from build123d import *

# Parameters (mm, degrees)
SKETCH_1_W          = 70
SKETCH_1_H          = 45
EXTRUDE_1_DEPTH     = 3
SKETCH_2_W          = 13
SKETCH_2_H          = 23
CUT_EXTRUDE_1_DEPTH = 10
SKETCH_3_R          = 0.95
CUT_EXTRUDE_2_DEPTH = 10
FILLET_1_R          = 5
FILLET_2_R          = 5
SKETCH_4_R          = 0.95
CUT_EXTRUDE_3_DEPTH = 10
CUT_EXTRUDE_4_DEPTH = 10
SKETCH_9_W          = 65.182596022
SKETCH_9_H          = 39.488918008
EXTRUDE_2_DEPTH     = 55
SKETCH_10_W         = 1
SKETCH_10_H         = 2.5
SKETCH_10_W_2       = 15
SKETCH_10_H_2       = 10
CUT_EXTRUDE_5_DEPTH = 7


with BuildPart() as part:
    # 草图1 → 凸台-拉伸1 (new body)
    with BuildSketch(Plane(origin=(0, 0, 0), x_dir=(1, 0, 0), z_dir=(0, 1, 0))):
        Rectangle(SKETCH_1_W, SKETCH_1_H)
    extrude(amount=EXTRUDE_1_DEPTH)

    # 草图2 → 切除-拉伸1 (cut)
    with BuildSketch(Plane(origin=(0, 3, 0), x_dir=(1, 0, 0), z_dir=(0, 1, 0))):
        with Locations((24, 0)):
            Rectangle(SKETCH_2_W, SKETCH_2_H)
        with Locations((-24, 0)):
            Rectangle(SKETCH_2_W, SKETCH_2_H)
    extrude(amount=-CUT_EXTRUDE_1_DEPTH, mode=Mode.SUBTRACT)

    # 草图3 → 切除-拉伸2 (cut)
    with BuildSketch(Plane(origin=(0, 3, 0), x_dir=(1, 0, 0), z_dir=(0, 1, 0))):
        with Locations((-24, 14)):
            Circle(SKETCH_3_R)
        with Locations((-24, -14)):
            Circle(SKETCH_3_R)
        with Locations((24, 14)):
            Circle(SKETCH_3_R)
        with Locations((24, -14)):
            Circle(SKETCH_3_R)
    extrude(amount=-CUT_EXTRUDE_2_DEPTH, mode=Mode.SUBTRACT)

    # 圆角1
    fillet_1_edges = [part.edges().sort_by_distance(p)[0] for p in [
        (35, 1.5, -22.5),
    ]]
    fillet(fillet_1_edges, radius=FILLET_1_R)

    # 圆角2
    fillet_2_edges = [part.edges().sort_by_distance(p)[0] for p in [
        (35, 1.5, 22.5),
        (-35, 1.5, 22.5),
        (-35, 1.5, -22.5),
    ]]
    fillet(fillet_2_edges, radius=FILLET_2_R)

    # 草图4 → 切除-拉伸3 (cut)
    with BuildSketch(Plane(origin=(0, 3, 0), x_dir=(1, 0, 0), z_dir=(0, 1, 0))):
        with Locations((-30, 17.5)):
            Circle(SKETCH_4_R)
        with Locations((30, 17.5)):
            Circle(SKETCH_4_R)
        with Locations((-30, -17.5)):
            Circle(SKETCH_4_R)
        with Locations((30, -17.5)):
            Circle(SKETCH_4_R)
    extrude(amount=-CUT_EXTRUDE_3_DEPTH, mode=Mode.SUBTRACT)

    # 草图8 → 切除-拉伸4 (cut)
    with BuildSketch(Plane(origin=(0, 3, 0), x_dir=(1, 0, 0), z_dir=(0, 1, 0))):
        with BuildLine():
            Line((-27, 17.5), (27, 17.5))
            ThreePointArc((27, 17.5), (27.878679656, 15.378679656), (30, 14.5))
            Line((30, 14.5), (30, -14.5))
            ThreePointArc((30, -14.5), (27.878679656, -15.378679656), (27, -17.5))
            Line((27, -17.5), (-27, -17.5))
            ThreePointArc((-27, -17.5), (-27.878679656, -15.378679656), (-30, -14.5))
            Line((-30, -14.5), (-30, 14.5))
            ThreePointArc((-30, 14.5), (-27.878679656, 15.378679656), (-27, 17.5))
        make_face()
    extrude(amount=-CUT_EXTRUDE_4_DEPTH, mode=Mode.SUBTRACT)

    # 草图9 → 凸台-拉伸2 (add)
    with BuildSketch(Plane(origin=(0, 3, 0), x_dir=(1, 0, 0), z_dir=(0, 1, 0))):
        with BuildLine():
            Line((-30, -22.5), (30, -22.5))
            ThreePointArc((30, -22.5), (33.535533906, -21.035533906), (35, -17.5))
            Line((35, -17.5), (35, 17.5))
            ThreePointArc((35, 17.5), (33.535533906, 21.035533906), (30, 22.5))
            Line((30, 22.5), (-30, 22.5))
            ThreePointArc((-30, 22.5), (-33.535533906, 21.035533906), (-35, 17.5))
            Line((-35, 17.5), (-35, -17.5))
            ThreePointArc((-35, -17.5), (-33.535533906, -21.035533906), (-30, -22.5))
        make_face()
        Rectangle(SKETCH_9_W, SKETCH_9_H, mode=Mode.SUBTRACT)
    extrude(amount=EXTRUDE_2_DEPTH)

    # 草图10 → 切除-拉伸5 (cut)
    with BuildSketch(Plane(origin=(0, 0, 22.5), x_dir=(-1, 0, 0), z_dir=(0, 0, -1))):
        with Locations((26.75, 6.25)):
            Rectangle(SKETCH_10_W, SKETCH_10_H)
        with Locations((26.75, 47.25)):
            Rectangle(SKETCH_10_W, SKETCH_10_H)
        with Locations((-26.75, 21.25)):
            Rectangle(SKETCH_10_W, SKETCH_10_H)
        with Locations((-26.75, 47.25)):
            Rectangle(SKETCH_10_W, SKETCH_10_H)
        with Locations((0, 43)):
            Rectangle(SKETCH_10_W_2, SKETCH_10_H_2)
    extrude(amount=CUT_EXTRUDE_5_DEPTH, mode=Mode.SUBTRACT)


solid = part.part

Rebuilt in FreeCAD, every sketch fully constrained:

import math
import FreeCAD as App
import Part
import Sketcher
from FreeCAD import Vector
Q = App.Units.Quantity


def edges_at(feature, points):
    """Names of the edges that pass closest to the given points."""
    edges = feature.Shape.Edges
    near = lambda p: min(range(len(edges)), key=lambda i: edges[i].distToShape(Part.Vertex(*p))[0])
    return sorted({f"Edge{near(p) + 1}" for p in points})

doc = App.newDocument("Part")
body = doc.addObject("PartDesign::Body", "Body")

sketch1 = body.newObject("Sketcher::SketchObject", "Sketch")
sketch1.AttachmentSupport = (doc.getObject("XZ_Plane"), [""])
sketch1.MapMode = "FlatFace"
sketch1.addGeometry(Part.LineSegment(Vector(-35, -22, 0), Vector(-35, 22, 0)), False)
sketch1.addGeometry(Part.LineSegment(Vector(-35, 22, 0), Vector(35, 22, 0)), False)
sketch1.addGeometry(Part.LineSegment(Vector(35, 22, 0), Vector(35, -22, 0)), False)
sketch1.addGeometry(Part.LineSegment(Vector(35, -22, 0), Vector(-35, -22, 0)), False)
sketch1.addConstraint(Sketcher.Constraint("Coincident", 0, 2, 1, 1))
sketch1.addConstraint(Sketcher.Constraint("Coincident", 1, 2, 2, 1))
sketch1.addConstraint(Sketcher.Constraint("Coincident", 2, 2, 3, 1))
sketch1.addConstraint(Sketcher.Constraint("Coincident", 3, 2, 0, 1))
sketch1.addConstraint(Sketcher.Constraint("Vertical", 0))
sketch1.addConstraint(Sketcher.Constraint("Horizontal", 1))
sketch1.addConstraint(Sketcher.Constraint("Vertical", 2))
sketch1.addConstraint(Sketcher.Constraint("Horizontal", 3))
sketch1.addConstraint(Sketcher.Constraint("Symmetric", 0, 2, 2, 2, -1, 1))
sketch1.addConstraint(Sketcher.Constraint("DistanceX", 1, 1, 1, 2, Q("70 mm")))
sketch1.addConstraint(Sketcher.Constraint("DistanceY", 0, 1, 0, 2, Q("45 mm")))
pad1 = body.newObject("PartDesign::Pad", "Pad")
pad1.Profile = sketch1
pad1.Length = 3
pad1.Reversed = True

sketch2 = body.newObject("Sketcher::SketchObject", "Sketch001")
sketch2.AttachmentSupport = (doc.getObject("XZ_Plane"), [""])
sketch2.MapMode = "FlatFace"
sketch2.AttachmentOffset = App.Placement(Vector(0, 0, -3), App.Rotation())
sketch2.addGeometry(Part.LineSegment(Vector(18, -12, 0), Vector(18, 12, 0)), False)
sketch2.addGeometry(Part.LineSegment(Vector(18, 12, 0), Vector(30, 12, 0)), False)
sketch2.addGeometry(Part.LineSegment(Vector(30, 12, 0), Vector(30, -12, 0)), False)
sketch2.addGeometry(Part.LineSegment(Vector(30, -12, 0), Vector(18, -12, 0)), False)
sketch2.addGeometry(Part.LineSegment(Vector(-30, -12, 0), Vector(-30, 12, 0)), False)
sketch2.addGeometry(Part.LineSegment(Vector(-30, 12, 0), Vector(-18, 12, 0)), False)
sketch2.addGeometry(Part.LineSegment(Vector(-18, 12, 0), Vector(-18, -12, 0)), False)
sketch2.addGeometry(Part.LineSegment(Vector(-18, -12, 0), Vector(-30, -12, 0)), False)
sketch2.addConstraint(Sketcher.Constraint("Coincident", 0, 2, 1, 1))
sketch2.addConstraint(Sketcher.Constraint("Coincident", 1, 2, 2, 1))
sketch2.addConstraint(Sketcher.Constraint("Coincident", 2, 2, 3, 1))
sketch2.addConstraint(Sketcher.Constraint("Coincident", 3, 2, 0, 1))
sketch2.addConstraint(Sketcher.Constraint("Coincident", 4, 2, 5, 1))
sketch2.addConstraint(Sketcher.Constraint("Coincident", 5, 2, 6, 1))
sketch2.addConstraint(Sketcher.Constraint("Coincident", 6, 2, 7, 1))
sketch2.addConstraint(Sketcher.Constraint("Coincident", 7, 2, 4, 1))
sketch2.addConstraint(Sketcher.Constraint("Vertical", 0))
sketch2.addConstraint(Sketcher.Constraint("Horizontal", 1))
sketch2.addConstraint(Sketcher.Constraint("Vertical", 2))
sketch2.addConstraint(Sketcher.Constraint("Horizontal", 3))
sketch2.addConstraint(Sketcher.Constraint("Vertical", 4))
sketch2.addConstraint(Sketcher.Constraint("Horizontal", 5))
sketch2.addConstraint(Sketcher.Constraint("Vertical", 6))
sketch2.addConstraint(Sketcher.Constraint("Horizontal", 7))
sketch2.addConstraint(Sketcher.Constraint("Symmetric", 2, 2, 4, 2, -1, 1))
sketch2.addConstraint(Sketcher.Constraint("Symmetric", 0, 2, 6, 2, -1, 1))
sketch2.addConstraint(Sketcher.Constraint("Horizontal", 1, 2, 4, 2))
sketch2.addConstraint(Sketcher.Constraint("DistanceX", 1, 1, 1, 2, Q("13 mm")))
sketch2.addConstraint(Sketcher.Constraint("DistanceY", 0, 1, 0, 2, Q("23 mm")))
sketch2.addConstraint(Sketcher.Constraint("DistanceX", 4, 2, 0, 2, Q("48 mm")))
pocket1 = body.newObject("PartDesign::Pocket", "Pocket")
pocket1.Profile = sketch2
pocket1.Length = 10
pocket1.Reversed = True

sketch3 = body.newObject("Sketcher::SketchObject", "Sketch002")
sketch3.AttachmentSupport = (doc.getObject("XZ_Plane"), [""])
sketch3.MapMode = "FlatFace"
sketch3.AttachmentOffset = App.Placement(Vector(0, 0, -3), App.Rotation())
sketch3.addGeometry(Part.Circle(Vector(-24, -14, 0), Vector(0, 0, 1), 0.9), False)
sketch3.addGeometry(Part.Circle(Vector(-24, 14, 0), Vector(0, 0, 1), 0.9), False)
sketch3.addGeometry(Part.Circle(Vector(24, -14, 0), Vector(0, 0, 1), 0.9), False)
sketch3.addGeometry(Part.Circle(Vector(24, 14, 0), Vector(0, 0, 1), 0.9), False)
sketch3.addConstraint(Sketcher.Constraint("Equal", 0, 1))
sketch3.addConstraint(Sketcher.Constraint("Equal", 1, 2))
sketch3.addConstraint(Sketcher.Constraint("Equal", 2, 3))
sketch3.addConstraint(Sketcher.Constraint("Symmetric", 1, 3, 2, 3, -1, 1))
sketch3.addConstraint(Sketcher.Constraint("Symmetric", 0, 3, 3, 3, -1, 1))
sketch3.addConstraint(Sketcher.Constraint("Symmetric", 0, 3, 2, 3, -2))
sketch3.addConstraint(Sketcher.Constraint("Diameter", 0, Q("1.9 mm")))
sketch3.addConstraint(Sketcher.Constraint("DistanceX", 0, 3, -1, 1, Q("24 mm")))
sketch3.addConstraint(Sketcher.Constraint("DistanceY", 0, 3, -1, 1, Q("14 mm")))
pocket2 = body.newObject("PartDesign::Pocket", "Pocket001")
pocket2.Profile = sketch3
pocket2.Length = 10
pocket2.Reversed = True
doc.recompute()

fillet = body.newObject("PartDesign::Fillet", "Fillet")
fillet.Base = (pocket2, edges_at(pocket2, [(35, 1.5, -22.5)]))
fillet.Radius = 5
doc.recompute()

fillet2 = body.newObject("PartDesign::Fillet", "Fillet001")
fillet2.Base = (fillet, edges_at(fillet, [(35, 1.5, 22.5), (-35, 1.5, 22.5), (-35, 1.5, -22.5)]))
fillet2.Radius = 5

sketch4 = body.newObject("Sketcher::SketchObject", "Sketch003")
sketch4.AttachmentSupport = (doc.getObject("XZ_Plane"), [""])
sketch4.MapMode = "FlatFace"
sketch4.AttachmentOffset = App.Placement(Vector(0, 0, -3), App.Rotation())
sketch4.addGeometry(Part.Circle(Vector(-30, -17.5, 0), Vector(0, 0, 1), 0.9), False)
sketch4.addGeometry(Part.Circle(Vector(30, -17.5, 0), Vector(0, 0, 1), 0.9), False)
sketch4.addGeometry(Part.Circle(Vector(-30, 17.5, 0), Vector(0, 0, 1), 0.9), False)
sketch4.addGeometry(Part.Circle(Vector(30, 17.5, 0), Vector(0, 0, 1), 0.9), False)
sketch4.addConstraint(Sketcher.Constraint("Equal", 0, 1))
sketch4.addConstraint(Sketcher.Constraint("Equal", 1, 2))
sketch4.addConstraint(Sketcher.Constraint("Equal", 2, 3))
sketch4.addConstraint(Sketcher.Constraint("Symmetric", 1, 3, 2, 3, -1, 1))
sketch4.addConstraint(Sketcher.Constraint("Symmetric", 0, 3, 3, 3, -1, 1))
sketch4.addConstraint(Sketcher.Constraint("Symmetric", 0, 3, 1, 3, -2))
sketch4.addConstraint(Sketcher.Constraint("Diameter", 0, Q("1.9 mm")))
sketch4.addConstraint(Sketcher.Constraint("DistanceX", 0, 3, -1, 1, Q("30 mm")))
sketch4.addConstraint(Sketcher.Constraint("DistanceY", 0, 3, 2, 3, Q("35 mm")))
pocket3 = body.newObject("PartDesign::Pocket", "Pocket002")
pocket3.Profile = sketch4
pocket3.Length = 10
pocket3.Reversed = True

sketch5 = body.newObject("Sketcher::SketchObject", "Sketch004")
sketch5.AttachmentSupport = (doc.getObject("XZ_Plane"), [""])
sketch5.MapMode = "FlatFace"
sketch5.AttachmentOffset = App.Placement(Vector(0, 0, -3), App.Rotation())
sketch5.addGeometry(Part.LineSegment(Vector(27, -17.5, 0), Vector(-27, -17.5, 0)), False)
sketch5.addGeometry(Part.ArcOfCircle(Part.Circle(Vector(-30, -17.5, 0), Vector(0, 0, 1), 3), math.radians(0), math.radians(90)), False)
sketch5.addGeometry(Part.LineSegment(Vector(-30, -14.5, 0), Vector(-30, 14.5, 0)), False)
sketch5.addGeometry(Part.ArcOfCircle(Part.Circle(Vector(-30, 17.5, 0), Vector(0, 0, 1), 3), math.radians(-90), math.radians(0)), False)
sketch5.addGeometry(Part.LineSegment(Vector(-27, 17.5, 0), Vector(27, 17.5, 0)), False)
sketch5.addGeometry(Part.ArcOfCircle(Part.Circle(Vector(30, 17.5, 0), Vector(0, 0, 1), 3), math.radians(180), math.radians(270)), False)
sketch5.addGeometry(Part.LineSegment(Vector(30, 14.5, 0), Vector(30, -14.5, 0)), False)
sketch5.addGeometry(Part.ArcOfCircle(Part.Circle(Vector(30, -17.5, 0), Vector(0, 0, 1), 3), math.radians(90), math.radians(180)), False)
sketch5.addConstraint(Sketcher.Constraint("Coincident", 0, 2, 1, 1))
sketch5.addConstraint(Sketcher.Constraint("Coincident", 1, 2, 2, 1))
sketch5.addConstraint(Sketcher.Constraint("Coincident", 2, 2, 3, 1))
sketch5.addConstraint(Sketcher.Constraint("Coincident", 3, 2, 4, 1))
sketch5.addConstraint(Sketcher.Constraint("Coincident", 4, 2, 5, 1))
sketch5.addConstraint(Sketcher.Constraint("Coincident", 5, 2, 6, 1))
sketch5.addConstraint(Sketcher.Constraint("Coincident", 6, 2, 7, 1))
sketch5.addConstraint(Sketcher.Constraint("Coincident", 7, 2, 0, 1))
sketch5.addConstraint(Sketcher.Constraint("Horizontal", 0))
sketch5.addConstraint(Sketcher.Constraint("Vertical", 2))
sketch5.addConstraint(Sketcher.Constraint("Horizontal", 4))
sketch5.addConstraint(Sketcher.Constraint("Vertical", 6))
sketch5.addConstraint(Sketcher.Constraint("Equal", 1, 3))
sketch5.addConstraint(Sketcher.Constraint("Equal", 3, 5))
sketch5.addConstraint(Sketcher.Constraint("Equal", 5, 7))
sketch5.addConstraint(Sketcher.Constraint("Symmetric", 1, 3, 5, 3, -1, 1))
sketch5.addConstraint(Sketcher.Constraint("Symmetric", 3, 3, 7, 3, -1, 1))
sketch5.addConstraint(Sketcher.Constraint("Symmetric", 3, 3, 5, 3, -2))
sketch5.addConstraint(Sketcher.Constraint("Horizontal", 7, 3, 0, 2))
sketch5.addConstraint(Sketcher.Constraint("Horizontal", 5, 3, 3, 2))
sketch5.addConstraint(Sketcher.Constraint("Vertical", 3, 3, 1, 2))
sketch5.addConstraint(Sketcher.Constraint("Vertical", 7, 3, 5, 2))
sketch5.addConstraint(Sketcher.Constraint("Radius", 1, Q("3 mm")))
sketch5.addConstraint(Sketcher.Constraint("DistanceX", 0, 2, 0, 1, Q("54 mm")))
sketch5.addConstraint(Sketcher.Constraint("DistanceY", 2, 1, 2, 2, Q("29 mm")))
pocket4 = body.newObject("PartDesign::Pocket", "Pocket003")
pocket4.Profile = sketch5
pocket4.Length = 10
pocket4.Reversed = True

sketch6 = body.newObject("Sketcher::SketchObject", "Sketch005")
sketch6.AttachmentSupport = (doc.getObject("XZ_Plane"), [""])
sketch6.MapMode = "FlatFace"
sketch6.AttachmentOffset = App.Placement(Vector(0, 0, -3), App.Rotation())
sketch6.addGeometry(Part.LineSegment(Vector(-30, 22, 0), Vector(30, 22, 0)), False)
sketch6.addGeometry(Part.ArcOfCircle(Part.Circle(Vector(30, 18, 0), Vector(0, 0, 1), 5), math.radians(0), math.radians(90)), False)
sketch6.addGeometry(Part.LineSegment(Vector(35, 18, 0), Vector(35, -18, 0)), False)
sketch6.addGeometry(Part.ArcOfCircle(Part.Circle(Vector(30, -18, 0), Vector(0, 0, 1), 5), math.radians(-90), math.radians(0)), False)
sketch6.addGeometry(Part.LineSegment(Vector(30, -22, 0), Vector(-30, -22, 0)), False)
sketch6.addGeometry(Part.ArcOfCircle(Part.Circle(Vector(-30, -18, 0), Vector(0, 0, 1), 5), math.radians(180), math.radians(270)), False)
sketch6.addGeometry(Part.LineSegment(Vector(-35, -18, 0), Vector(-35, 18, 0)), False)
sketch6.addGeometry(Part.ArcOfCircle(Part.Circle(Vector(-30, 18, 0), Vector(0, 0, 1), 5), math.radians(90), math.radians(180)), False)
sketch6.addGeometry(Part.LineSegment(Vector(33, 20, 0), Vector(-33, 20, 0)), False)
sketch6.addGeometry(Part.LineSegment(Vector(-33, 20, 0), Vector(-33, -20, 0)), False)
sketch6.addGeometry(Part.LineSegment(Vector(-33, -20, 0), Vector(33, -20, 0)), False)
sketch6.addGeometry(Part.LineSegment(Vector(33, -20, 0), Vector(33, 20, 0)), False)
sketch6.addConstraint(Sketcher.Constraint("Tangent", 0, 2, 1, 2))
sketch6.addConstraint(Sketcher.Constraint("Tangent", 1, 1, 2, 1))
sketch6.addConstraint(Sketcher.Constraint("Tangent", 2, 2, 3, 2))
sketch6.addConstraint(Sketcher.Constraint("Tangent", 3, 1, 4, 1))
sketch6.addConstraint(Sketcher.Constraint("Tangent", 4, 2, 5, 2))
sketch6.addConstraint(Sketcher.Constraint("Tangent", 5, 1, 6, 1))
sketch6.addConstraint(Sketcher.Constraint("Tangent", 6, 2, 7, 2))
sketch6.addConstraint(Sketcher.Constraint("Tangent", 7, 1, 0, 1))
sketch6.addConstraint(Sketcher.Constraint("Coincident", 8, 2, 9, 1))
sketch6.addConstraint(Sketcher.Constraint("Coincident", 9, 2, 10, 1))
sketch6.addConstraint(Sketcher.Constraint("Coincident", 10, 2, 11, 1))
sketch6.addConstraint(Sketcher.Constraint("Coincident", 11, 2, 8, 1))
sketch6.addConstraint(Sketcher.Constraint("Horizontal", 0))
sketch6.addConstraint(Sketcher.Constraint("Vertical", 2))
sketch6.addConstraint(Sketcher.Constraint("Horizontal", 4))
sketch6.addConstraint(Sketcher.Constraint("Vertical", 6))
sketch6.addConstraint(Sketcher.Constraint("Horizontal", 8))
sketch6.addConstraint(Sketcher.Constraint("Vertical", 9))
sketch6.addConstraint(Sketcher.Constraint("Horizontal", 10))
sketch6.addConstraint(Sketcher.Constraint("Vertical", 11))
sketch6.addConstraint(Sketcher.Constraint("Equal", 1, 3))
sketch6.addConstraint(Sketcher.Constraint("Equal", 3, 5))
sketch6.addConstraint(Sketcher.Constraint("Equal", 5, 7))
sketch6.addConstraint(Sketcher.Constraint("Symmetric", 1, 3, 5, 3, -1, 1))
sketch6.addConstraint(Sketcher.Constraint("Symmetric", 8, 2, 10, 2, -1, 1))
sketch6.addConstraint(Sketcher.Constraint("Radius", 1, Q("5 mm")))
sketch6.addConstraint(Sketcher.Constraint("DistanceX", 0, 1, 0, 2, Q("60 mm")))
sketch6.addConstraint(Sketcher.Constraint("DistanceY", 2, 2, 2, 1, Q("35 mm")))
sketch6.addConstraint(Sketcher.Constraint("DistanceY", 9, 2, 9, 1, Q("39.488918 mm")))
sketch6.addConstraint(Sketcher.Constraint("DistanceX", 8, 2, -1, 1, Q("32.591298 mm")))
pad2 = body.newObject("PartDesign::Pad", "Pad001")
pad2.Profile = sketch6
pad2.Length = 55
pad2.Reversed = True

sketch7 = body.newObject("Sketcher::SketchObject", "Sketch006")
sketch7.AttachmentSupport = (doc.getObject("XY_Plane"), [""])
sketch7.MapMode = "FlatFace"
sketch7.AttachmentOffset = App.Placement(Vector(0, 0, 22.5), App.Rotation())
sketch7.addGeometry(Part.LineSegment(Vector(-26.2, 7.5, 0), Vector(-26.2, 5, 0)), False)
sketch7.addGeometry(Part.LineSegment(Vector(-26.2, 5, 0), Vector(-27.2, 5, 0)), False)
sketch7.addGeometry(Part.LineSegment(Vector(-27.2, 5, 0), Vector(-27.2, 7.5, 0)), False)
sketch7.addGeometry(Part.LineSegment(Vector(-27.2, 7.5, 0), Vector(-26.2, 7.5, 0)), False)
sketch7.addGeometry(Part.LineSegment(Vector(-26.2, 48.5, 0), Vector(-26.2, 46, 0)), False)
sketch7.addGeometry(Part.LineSegment(Vector(-26.2, 46, 0), Vector(-27.2, 46, 0)), False)
sketch7.addGeometry(Part.LineSegment(Vector(-27.2, 46, 0), Vector(-27.2, 48.5, 0)), False)
sketch7.addGeometry(Part.LineSegment(Vector(-27.2, 48.5, 0), Vector(-26.2, 48.5, 0)), False)
sketch7.addGeometry(Part.LineSegment(Vector(27.2, 22.5, 0), Vector(27.2, 20, 0)), False)
sketch7.addGeometry(Part.LineSegment(Vector(27.2, 20, 0), Vector(26.2, 20, 0)), False)
sketch7.addGeometry(Part.LineSegment(Vector(26.2, 20, 0), Vector(26.2, 22.5, 0)), False)
sketch7.addGeometry(Part.LineSegment(Vector(26.2, 22.5, 0), Vector(27.2, 22.5, 0)), False)
sketch7.addGeometry(Part.LineSegment(Vector(27.2, 48.5, 0), Vector(27.2, 46, 0)), False)
sketch7.addGeometry(Part.LineSegment(Vector(27.2, 46, 0), Vector(26.2, 46, 0)), False)
sketch7.addGeometry(Part.LineSegment(Vector(26.2, 46, 0), Vector(26.2, 48.5, 0)), False)
sketch7.addGeometry(Part.LineSegment(Vector(26.2, 48.5, 0), Vector(27.2, 48.5, 0)), False)
sketch7.addGeometry(Part.LineSegment(Vector(7.5, 48, 0), Vector(7.5, 38, 0)), False)
sketch7.addGeometry(Part.LineSegment(Vector(7.5, 38, 0), Vector(-7.5, 38, 0)), False)
sketch7.addGeometry(Part.LineSegment(Vector(-7.5, 38, 0), Vector(-7.5, 48, 0)), False)
sketch7.addGeometry(Part.LineSegment(Vector(-7.5, 48, 0), Vector(7.5, 48, 0)), False)
sketch7.addConstraint(Sketcher.Constraint("Coincident", 0, 2, 1, 1))
sketch7.addConstraint(Sketcher.Constraint("Coincident", 1, 2, 2, 1))
sketch7.addConstraint(Sketcher.Constraint("Coincident", 2, 2, 3, 1))
sketch7.addConstraint(Sketcher.Constraint("Coincident", 3, 2, 0, 1))
sketch7.addConstraint(Sketcher.Constraint("Coincident", 4, 2, 5, 1))
sketch7.addConstraint(Sketcher.Constraint("Coincident", 5, 2, 6, 1))
sketch7.addConstraint(Sketcher.Constraint("Coincident", 6, 2, 7, 1))
sketch7.addConstraint(Sketcher.Constraint("Coincident", 7, 2, 4, 1))
sketch7.addConstraint(Sketcher.Constraint("Coincident", 8, 2, 9, 1))
sketch7.addConstraint(Sketcher.Constraint("Coincident", 9, 2, 10, 1))
sketch7.addConstraint(Sketcher.Constraint("Coincident", 10, 2, 11, 1))
sketch7.addConstraint(Sketcher.Constraint("Coincident", 11, 2, 8, 1))
sketch7.addConstraint(Sketcher.Constraint("Coincident", 12, 2, 13, 1))
sketch7.addConstraint(Sketcher.Constraint("Coincident", 13, 2, 14, 1))
sketch7.addConstraint(Sketcher.Constraint("Coincident", 14, 2, 15, 1))
sketch7.addConstraint(Sketcher.Constraint("Coincident", 15, 2, 12, 1))
sketch7.addConstraint(Sketcher.Constraint("Coincident", 16, 2, 17, 1))
sketch7.addConstraint(Sketcher.Constraint("Coincident", 17, 2, 18, 1))
sketch7.addConstraint(Sketcher.Constraint("Coincident", 18, 2, 19, 1))
sketch7.addConstraint(Sketcher.Constraint("Coincident", 19, 2, 16, 1))
sketch7.addConstraint(Sketcher.Constraint("Vertical", 0))
sketch7.addConstraint(Sketcher.Constraint("Horizontal", 1))
sketch7.addConstraint(Sketcher.Constraint("Vertical", 2))
sketch7.addConstraint(Sketcher.Constraint("Horizontal", 3))
sketch7.addConstraint(Sketcher.Constraint("Vertical", 4))
sketch7.addConstraint(Sketcher.Constraint("Horizontal", 5))
sketch7.addConstraint(Sketcher.Constraint("Vertical", 6))
sketch7.addConstraint(Sketcher.Constraint("Horizontal", 7))
sketch7.addConstraint(Sketcher.Constraint("Vertical", 8))
sketch7.addConstraint(Sketcher.Constraint("Horizontal", 9))
sketch7.addConstraint(Sketcher.Constraint("Vertical", 10))
sketch7.addConstraint(Sketcher.Constraint("Horizontal", 11))
sketch7.addConstraint(Sketcher.Constraint("Vertical", 12))
sketch7.addConstraint(Sketcher.Constraint("Horizontal", 13))
sketch7.addConstraint(Sketcher.Constraint("Vertical", 14))
sketch7.addConstraint(Sketcher.Constraint("Horizontal", 15))
sketch7.addConstraint(Sketcher.Constraint("Vertical", 16))
sketch7.addConstraint(Sketcher.Constraint("Horizontal", 17))
sketch7.addConstraint(Sketcher.Constraint("Vertical", 18))
sketch7.addConstraint(Sketcher.Constraint("Horizontal", 19))
sketch7.addConstraint(Sketcher.Constraint("Symmetric", 5, 2, 12, 2, -2))
sketch7.addConstraint(Sketcher.Constraint("Symmetric", 7, 2, 14, 2, -2))
sketch7.addConstraint(Sketcher.Constraint("Vertical", 3, 2, 4, 2))
sketch7.addConstraint(Sketcher.Constraint("Vertical", 2, 2, 5, 2))
sketch7.addConstraint(Sketcher.Constraint("Vertical", 11, 2, 12, 2))
sketch7.addConstraint(Sketcher.Constraint("Vertical", 10, 2, 13, 2))
sketch7.addConstraint(Sketcher.Constraint("Equal", 2, 4))
sketch7.addConstraint(Sketcher.Constraint("Equal", 6, 8))
sketch7.addConstraint(Sketcher.Constraint("DistanceX", 1, 2, 1, 1, Q("1 mm")))
sketch7.addConstraint(Sketcher.Constraint("DistanceX", 17, 2, 17, 1, Q("15 mm")))
sketch7.addConstraint(Sketcher.Constraint("DistanceY", 16, 2, 16, 1, Q("10 mm")))
sketch7.addConstraint(Sketcher.Constraint("DistanceY", 0, 2, 0, 1, Q("2.5 mm")))
sketch7.addConstraint(Sketcher.Constraint("DistanceY", -1, 1, 0, 2, Q("5 mm")))
sketch7.addConstraint(Sketcher.Constraint("DistanceY", -1, 1, 4, 2, Q("46 mm")))
sketch7.addConstraint(Sketcher.Constraint("DistanceY", -1, 1, 8, 2, Q("20 mm")))
sketch7.addConstraint(Sketcher.Constraint("DistanceY", -1, 1, 16, 2, Q("38 mm")))
sketch7.addConstraint(Sketcher.Constraint("DistanceX", -1, 1, 16, 2, Q("7.5 mm")))
sketch7.addConstraint(Sketcher.Constraint("DistanceX", 3, 2, 8, 2, Q("53.5 mm")))
pocket5 = body.newObject("PartDesign::Pocket", "Pocket004")
pocket5.Profile = sketch7
pocket5.Length = 7

doc.recompute()
